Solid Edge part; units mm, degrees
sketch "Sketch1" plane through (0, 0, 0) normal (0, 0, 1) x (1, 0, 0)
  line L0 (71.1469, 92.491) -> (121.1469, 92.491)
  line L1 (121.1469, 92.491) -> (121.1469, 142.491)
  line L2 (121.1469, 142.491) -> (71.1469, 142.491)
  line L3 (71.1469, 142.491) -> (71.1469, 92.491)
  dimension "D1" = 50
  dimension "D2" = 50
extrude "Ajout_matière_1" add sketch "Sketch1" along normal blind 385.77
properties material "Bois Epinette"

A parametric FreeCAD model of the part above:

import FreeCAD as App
import Part
import Sketcher
Q = App.Units.Quantity


def add_polygon(sketch, points):
    """Adds a closed chain of lines whose ends are joined by coincident constraints."""
    first, n = sketch.GeometryCount, len(points)
    for a, b in zip(points, points[1:] + points[:1]):
        sketch.addGeometry(Part.LineSegment(App.Vector(*a, 0), App.Vector(*b, 0)), False)
    for i in range(n):
        sketch.addConstraint(Sketcher.Constraint("Coincident", first + i, 2, first + (i + 1) % n, 1))

doc = App.newDocument("Part")
body = doc.addObject("PartDesign::Body", "Body")

# Sketch on XY plane
sketch1 = doc.addObject("Sketcher::SketchObject", "Sketch")
body.addObject(sketch1)
sketch1.AttachmentSupport = (doc.XY_Plane, [""])
sketch1.MapMode = "FlatFace"
add_polygon(sketch1, [(71.1469, 142.491), (71.1469, 92.491), (121.1469, 92.491), (121.1469, 142.491)])  # lines 0-3
sketch1.addConstraint(Sketcher.Constraint("Vertical", 0))
sketch1.addConstraint(Sketcher.Constraint("Horizontal", 1))
sketch1.addConstraint(Sketcher.Constraint("Vertical", 2))
sketch1.addConstraint(Sketcher.Constraint("Horizontal", 3))
sketch1.addConstraint(Sketcher.Constraint("Equal", 3, 0))
sketch1.addConstraint(Sketcher.Constraint("DistanceX", 1, 1, 1, 2, Q("50 mm")))
sketch1.addConstraint(Sketcher.Constraint("DistanceX", -1, 1, 1, 2, Q("121.147 mm")))
sketch1.addConstraint(Sketcher.Constraint("DistanceY", -1, 1, 0, 2, Q("92.491 mm")))
pad1 = doc.addObject("PartDesign::Pad", "Pad")
body.addObject(pad1)
pad1.Profile = sketch1
pad1.Length = 385.77

doc.recompute()
